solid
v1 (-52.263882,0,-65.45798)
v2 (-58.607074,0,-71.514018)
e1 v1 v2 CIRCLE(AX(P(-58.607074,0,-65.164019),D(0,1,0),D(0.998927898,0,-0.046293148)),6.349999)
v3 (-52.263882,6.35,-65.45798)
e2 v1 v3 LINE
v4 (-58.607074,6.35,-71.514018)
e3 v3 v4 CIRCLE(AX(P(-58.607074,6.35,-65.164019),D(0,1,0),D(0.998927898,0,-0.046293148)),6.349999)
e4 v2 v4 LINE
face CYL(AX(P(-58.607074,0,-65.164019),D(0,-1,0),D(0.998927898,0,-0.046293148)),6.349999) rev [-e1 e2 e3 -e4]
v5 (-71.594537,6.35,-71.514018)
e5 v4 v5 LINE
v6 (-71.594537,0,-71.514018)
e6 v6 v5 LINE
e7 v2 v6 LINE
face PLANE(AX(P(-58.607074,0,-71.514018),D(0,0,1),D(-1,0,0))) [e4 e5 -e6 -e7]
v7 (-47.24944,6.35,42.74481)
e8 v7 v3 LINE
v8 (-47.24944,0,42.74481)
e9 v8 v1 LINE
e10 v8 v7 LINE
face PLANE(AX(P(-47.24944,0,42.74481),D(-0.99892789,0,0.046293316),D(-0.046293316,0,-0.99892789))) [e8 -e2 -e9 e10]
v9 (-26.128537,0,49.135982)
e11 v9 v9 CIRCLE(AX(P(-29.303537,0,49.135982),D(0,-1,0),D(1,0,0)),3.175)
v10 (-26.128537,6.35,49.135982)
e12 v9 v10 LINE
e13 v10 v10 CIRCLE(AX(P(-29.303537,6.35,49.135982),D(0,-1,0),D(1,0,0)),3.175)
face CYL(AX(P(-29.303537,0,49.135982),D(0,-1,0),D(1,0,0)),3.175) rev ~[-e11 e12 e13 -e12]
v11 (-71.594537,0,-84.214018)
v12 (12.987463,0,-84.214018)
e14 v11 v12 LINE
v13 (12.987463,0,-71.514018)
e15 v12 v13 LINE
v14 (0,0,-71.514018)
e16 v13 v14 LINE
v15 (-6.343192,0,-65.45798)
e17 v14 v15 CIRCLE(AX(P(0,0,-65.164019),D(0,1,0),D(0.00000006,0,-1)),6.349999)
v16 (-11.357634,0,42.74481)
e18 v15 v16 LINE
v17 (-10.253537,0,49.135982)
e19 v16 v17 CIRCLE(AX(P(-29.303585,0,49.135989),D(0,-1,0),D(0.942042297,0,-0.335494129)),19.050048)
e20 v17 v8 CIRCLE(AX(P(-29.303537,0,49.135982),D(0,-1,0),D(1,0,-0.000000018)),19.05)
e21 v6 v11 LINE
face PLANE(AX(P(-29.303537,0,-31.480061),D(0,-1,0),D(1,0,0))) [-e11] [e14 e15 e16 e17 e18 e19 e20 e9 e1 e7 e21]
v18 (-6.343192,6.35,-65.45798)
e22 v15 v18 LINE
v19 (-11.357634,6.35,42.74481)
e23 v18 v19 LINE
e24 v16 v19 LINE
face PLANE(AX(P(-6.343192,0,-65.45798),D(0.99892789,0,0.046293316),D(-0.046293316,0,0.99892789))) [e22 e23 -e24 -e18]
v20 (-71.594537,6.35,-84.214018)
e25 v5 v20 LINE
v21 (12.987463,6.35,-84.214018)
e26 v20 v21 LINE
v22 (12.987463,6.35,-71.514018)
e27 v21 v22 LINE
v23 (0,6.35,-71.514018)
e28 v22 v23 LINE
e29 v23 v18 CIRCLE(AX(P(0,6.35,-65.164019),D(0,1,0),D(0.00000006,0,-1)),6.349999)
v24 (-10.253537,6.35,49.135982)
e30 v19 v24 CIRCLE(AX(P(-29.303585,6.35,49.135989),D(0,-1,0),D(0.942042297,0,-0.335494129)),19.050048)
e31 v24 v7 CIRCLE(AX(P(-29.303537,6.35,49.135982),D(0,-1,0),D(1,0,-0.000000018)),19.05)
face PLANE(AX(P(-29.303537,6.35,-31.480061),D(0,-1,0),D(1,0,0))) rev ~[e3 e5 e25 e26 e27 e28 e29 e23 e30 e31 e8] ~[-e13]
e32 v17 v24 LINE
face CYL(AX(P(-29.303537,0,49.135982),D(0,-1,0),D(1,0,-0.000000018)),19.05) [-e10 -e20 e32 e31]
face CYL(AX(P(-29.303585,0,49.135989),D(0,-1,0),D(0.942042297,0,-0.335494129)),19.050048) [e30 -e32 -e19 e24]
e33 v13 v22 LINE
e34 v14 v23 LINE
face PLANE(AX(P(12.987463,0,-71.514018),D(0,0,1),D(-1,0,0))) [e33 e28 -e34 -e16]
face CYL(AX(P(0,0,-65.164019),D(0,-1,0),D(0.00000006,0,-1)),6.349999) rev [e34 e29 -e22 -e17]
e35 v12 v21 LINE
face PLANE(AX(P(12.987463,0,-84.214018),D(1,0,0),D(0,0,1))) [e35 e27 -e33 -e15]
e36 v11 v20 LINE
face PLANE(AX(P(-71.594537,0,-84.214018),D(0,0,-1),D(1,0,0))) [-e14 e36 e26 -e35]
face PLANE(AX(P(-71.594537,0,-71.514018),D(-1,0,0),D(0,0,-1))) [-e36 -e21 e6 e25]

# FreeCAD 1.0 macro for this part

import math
import FreeCAD as App
import Part
import Sketcher
from FreeCAD import Vector
Q = App.Units.Quantity

doc = App.newDocument("Part")
params = doc.addObject("Spreadsheet::Sheet", "Params")
for row, (alias, value) in enumerate([
    ("sketch1_diameter", "0.25 in"),
    ("sketch1_radius", "0.25 in"),
    ("sketch1_radius2", "0.75 in"),
    ("sketch1_radius3", "0.25 in"),
    ("sketch1_height", "0.5 in"),
    ("pad1_length", "0.25 in"),
], start=1):
    params.set(f"A{row}", alias)
    params.set(f"B{row}", "=" + value)
    params.setAlias(f"B{row}", alias)

body = doc.addObject("PartDesign::Body", "Body")

sketch1 = body.newObject("Sketcher::SketchObject", "Sketch")
sketch1.AttachmentSupport = (doc.getObject("XZ_Plane"), [""])
sketch1.MapMode = "FlatFace"
sketch1.addGeometry([
    Part.LineSegment(Vector(-71.594537, -71.514018, 0), Vector(-71.594537, -84.214018, 0)),
    Part.LineSegment(Vector(-71.594537, -84.214018, 0), Vector(12.987463, -84.214018, 0)),
    Part.LineSegment(Vector(12.987463, -84.214018, 0), Vector(12.987463, -71.514018, 0)),
    Part.LineSegment(Vector(12.987463, -71.514018, 0), Vector(0, -71.514018, 0)),
    Part.ArcOfCircle(Part.Circle(Vector(0, -65.164019, 0), Vector(0, 0, 1), 6.349999), math.radians(-177.34665), math.radians(-89.999997)),
    Part.LineSegment(Vector(-6.343192, -65.45798, 0), Vector(-11.357634, 42.74481, 0)),
    Part.ArcOfCircle(Part.Circle(Vector(-29.303585, 49.135989, 0), Vector(0, 0, 1), 19.050048), math.radians(-19.602588), math.radians(-0.000021)),
    Part.ArcOfCircle(Part.Circle(Vector(-29.303537, 49.135982, 0), Vector(0, 0, 1), 19.05), math.radians(-0.000001), math.radians(199.602618)),
    Part.LineSegment(Vector(-47.24944, 42.74481, 0), Vector(-52.263882, -65.45798, 0)),
    Part.ArcOfCircle(Part.Circle(Vector(-58.607074, -65.164019, 0), Vector(0, 0, 1), 6.349999), math.radians(-90.000003), math.radians(-2.65335)),
    Part.LineSegment(Vector(-58.607074, -71.514018, 0), Vector(-71.594537, -71.514018, 0)),
    Part.Circle(Vector(-29.303537, 49.135982, 0), Vector(0, 0, 1), 3.175),
], False)
sketch1.addConstraint([
    Sketcher.Constraint("Coincident", 0, 2, 1, 1),
    Sketcher.Constraint("Coincident", 1, 2, 2, 1),
    Sketcher.Constraint("Coincident", 2, 2, 3, 1),
    Sketcher.Constraint("Coincident", 3, 2, 4, 2),
    Sketcher.Constraint("Coincident", 4, 1, 5, 1),
    Sketcher.Constraint("Coincident", 5, 2, 6, 1),
    Sketcher.Constraint("Coincident", 6, 2, 7, 1),
    Sketcher.Constraint("Coincident", 7, 2, 8, 1),
    Sketcher.Constraint("Coincident", 8, 2, 9, 2),
    Sketcher.Constraint("Coincident", 9, 1, 10, 1),
    Sketcher.Constraint("Coincident", 10, 2, 0, 1),
    Sketcher.Constraint("Vertical", 0),
    Sketcher.Constraint("Horizontal", 1),
    Sketcher.Constraint("Vertical", 2),
    Sketcher.Constraint("Horizontal", 3),
    Sketcher.Constraint("Horizontal", 10),
    Sketcher.Constraint("Coincident", 11, 3, 7, 3),
    Sketcher.Constraint("PointOnObject", 4, 3, -2),
    Sketcher.Constraint("PointOnObject", 3, 2, -2),
    Sketcher.Constraint("Diameter", 11, Q("0.25 in")),
    Sketcher.Constraint("Radius", 4, Q("0.25 in")),
    Sketcher.Constraint("Radius", 7, Q("0.75 in")),
    Sketcher.Constraint("Radius", 9, Q("0.25 in")),
    Sketcher.Constraint("DistanceY", 0, 2, 0, 1, Q("0.5 in")),
    Sketcher.Constraint("DistanceY", 2, 1, 2, 2, Q("0.5 in")),
    Sketcher.Constraint("DistanceX", 1, 1, 1, 2, Q("3.33 in")),
    Sketcher.Constraint("DistanceY", 4, 3, 7, 3, Q("4.5 in")),
    Sketcher.Constraint("DistanceX", 0, 2, 11, 3, Q("1.665 in")),
    Sketcher.Constraint("Radius", 6, 19.050048),
    Sketcher.Constraint("Distance", 5, 108.31892),
    Sketcher.Constraint("Distance", 8, 108.31892),
    Sketcher.Constraint("DistanceX", 3, 2, 3, 1, 12.987463),
    Sketcher.Constraint("DistanceX", 10, 2, 10, 1, 12.987463),
    Sketcher.Constraint("DistanceY", 4, 3, -1, 1, 65.164019),
    Sketcher.Constraint("DistanceY", -1, 1, 6, 3, 49.135989),
    Sketcher.Constraint("DistanceX", 4, 1, -1, 1, 6.343192),
    Sketcher.Constraint("DistanceY", -1, 1, 6, 2, 49.135982),
    Sketcher.Constraint("DistanceX", 7, 2, -1, 1, 47.24944),
    Sketcher.Constraint("DistanceY", 8, 2, -1, 1, 65.45798),
])
sketch1.setExpression("Constraints[19]", "Params.sketch1_diameter")
sketch1.setExpression("Constraints[20]", "Params.sketch1_radius")
sketch1.setExpression("Constraints[21]", "Params.sketch1_radius2")
sketch1.setExpression("Constraints[22]", "Params.sketch1_radius3")
sketch1.setExpression("Constraints[23]", "Params.sketch1_height")
pad1 = body.newObject("PartDesign::Pad", "Pad")
pad1.Profile = sketch1
pad1.setExpression("Length", "Params.pad1_length")
pad1.Reversed = True

doc.recompute()
